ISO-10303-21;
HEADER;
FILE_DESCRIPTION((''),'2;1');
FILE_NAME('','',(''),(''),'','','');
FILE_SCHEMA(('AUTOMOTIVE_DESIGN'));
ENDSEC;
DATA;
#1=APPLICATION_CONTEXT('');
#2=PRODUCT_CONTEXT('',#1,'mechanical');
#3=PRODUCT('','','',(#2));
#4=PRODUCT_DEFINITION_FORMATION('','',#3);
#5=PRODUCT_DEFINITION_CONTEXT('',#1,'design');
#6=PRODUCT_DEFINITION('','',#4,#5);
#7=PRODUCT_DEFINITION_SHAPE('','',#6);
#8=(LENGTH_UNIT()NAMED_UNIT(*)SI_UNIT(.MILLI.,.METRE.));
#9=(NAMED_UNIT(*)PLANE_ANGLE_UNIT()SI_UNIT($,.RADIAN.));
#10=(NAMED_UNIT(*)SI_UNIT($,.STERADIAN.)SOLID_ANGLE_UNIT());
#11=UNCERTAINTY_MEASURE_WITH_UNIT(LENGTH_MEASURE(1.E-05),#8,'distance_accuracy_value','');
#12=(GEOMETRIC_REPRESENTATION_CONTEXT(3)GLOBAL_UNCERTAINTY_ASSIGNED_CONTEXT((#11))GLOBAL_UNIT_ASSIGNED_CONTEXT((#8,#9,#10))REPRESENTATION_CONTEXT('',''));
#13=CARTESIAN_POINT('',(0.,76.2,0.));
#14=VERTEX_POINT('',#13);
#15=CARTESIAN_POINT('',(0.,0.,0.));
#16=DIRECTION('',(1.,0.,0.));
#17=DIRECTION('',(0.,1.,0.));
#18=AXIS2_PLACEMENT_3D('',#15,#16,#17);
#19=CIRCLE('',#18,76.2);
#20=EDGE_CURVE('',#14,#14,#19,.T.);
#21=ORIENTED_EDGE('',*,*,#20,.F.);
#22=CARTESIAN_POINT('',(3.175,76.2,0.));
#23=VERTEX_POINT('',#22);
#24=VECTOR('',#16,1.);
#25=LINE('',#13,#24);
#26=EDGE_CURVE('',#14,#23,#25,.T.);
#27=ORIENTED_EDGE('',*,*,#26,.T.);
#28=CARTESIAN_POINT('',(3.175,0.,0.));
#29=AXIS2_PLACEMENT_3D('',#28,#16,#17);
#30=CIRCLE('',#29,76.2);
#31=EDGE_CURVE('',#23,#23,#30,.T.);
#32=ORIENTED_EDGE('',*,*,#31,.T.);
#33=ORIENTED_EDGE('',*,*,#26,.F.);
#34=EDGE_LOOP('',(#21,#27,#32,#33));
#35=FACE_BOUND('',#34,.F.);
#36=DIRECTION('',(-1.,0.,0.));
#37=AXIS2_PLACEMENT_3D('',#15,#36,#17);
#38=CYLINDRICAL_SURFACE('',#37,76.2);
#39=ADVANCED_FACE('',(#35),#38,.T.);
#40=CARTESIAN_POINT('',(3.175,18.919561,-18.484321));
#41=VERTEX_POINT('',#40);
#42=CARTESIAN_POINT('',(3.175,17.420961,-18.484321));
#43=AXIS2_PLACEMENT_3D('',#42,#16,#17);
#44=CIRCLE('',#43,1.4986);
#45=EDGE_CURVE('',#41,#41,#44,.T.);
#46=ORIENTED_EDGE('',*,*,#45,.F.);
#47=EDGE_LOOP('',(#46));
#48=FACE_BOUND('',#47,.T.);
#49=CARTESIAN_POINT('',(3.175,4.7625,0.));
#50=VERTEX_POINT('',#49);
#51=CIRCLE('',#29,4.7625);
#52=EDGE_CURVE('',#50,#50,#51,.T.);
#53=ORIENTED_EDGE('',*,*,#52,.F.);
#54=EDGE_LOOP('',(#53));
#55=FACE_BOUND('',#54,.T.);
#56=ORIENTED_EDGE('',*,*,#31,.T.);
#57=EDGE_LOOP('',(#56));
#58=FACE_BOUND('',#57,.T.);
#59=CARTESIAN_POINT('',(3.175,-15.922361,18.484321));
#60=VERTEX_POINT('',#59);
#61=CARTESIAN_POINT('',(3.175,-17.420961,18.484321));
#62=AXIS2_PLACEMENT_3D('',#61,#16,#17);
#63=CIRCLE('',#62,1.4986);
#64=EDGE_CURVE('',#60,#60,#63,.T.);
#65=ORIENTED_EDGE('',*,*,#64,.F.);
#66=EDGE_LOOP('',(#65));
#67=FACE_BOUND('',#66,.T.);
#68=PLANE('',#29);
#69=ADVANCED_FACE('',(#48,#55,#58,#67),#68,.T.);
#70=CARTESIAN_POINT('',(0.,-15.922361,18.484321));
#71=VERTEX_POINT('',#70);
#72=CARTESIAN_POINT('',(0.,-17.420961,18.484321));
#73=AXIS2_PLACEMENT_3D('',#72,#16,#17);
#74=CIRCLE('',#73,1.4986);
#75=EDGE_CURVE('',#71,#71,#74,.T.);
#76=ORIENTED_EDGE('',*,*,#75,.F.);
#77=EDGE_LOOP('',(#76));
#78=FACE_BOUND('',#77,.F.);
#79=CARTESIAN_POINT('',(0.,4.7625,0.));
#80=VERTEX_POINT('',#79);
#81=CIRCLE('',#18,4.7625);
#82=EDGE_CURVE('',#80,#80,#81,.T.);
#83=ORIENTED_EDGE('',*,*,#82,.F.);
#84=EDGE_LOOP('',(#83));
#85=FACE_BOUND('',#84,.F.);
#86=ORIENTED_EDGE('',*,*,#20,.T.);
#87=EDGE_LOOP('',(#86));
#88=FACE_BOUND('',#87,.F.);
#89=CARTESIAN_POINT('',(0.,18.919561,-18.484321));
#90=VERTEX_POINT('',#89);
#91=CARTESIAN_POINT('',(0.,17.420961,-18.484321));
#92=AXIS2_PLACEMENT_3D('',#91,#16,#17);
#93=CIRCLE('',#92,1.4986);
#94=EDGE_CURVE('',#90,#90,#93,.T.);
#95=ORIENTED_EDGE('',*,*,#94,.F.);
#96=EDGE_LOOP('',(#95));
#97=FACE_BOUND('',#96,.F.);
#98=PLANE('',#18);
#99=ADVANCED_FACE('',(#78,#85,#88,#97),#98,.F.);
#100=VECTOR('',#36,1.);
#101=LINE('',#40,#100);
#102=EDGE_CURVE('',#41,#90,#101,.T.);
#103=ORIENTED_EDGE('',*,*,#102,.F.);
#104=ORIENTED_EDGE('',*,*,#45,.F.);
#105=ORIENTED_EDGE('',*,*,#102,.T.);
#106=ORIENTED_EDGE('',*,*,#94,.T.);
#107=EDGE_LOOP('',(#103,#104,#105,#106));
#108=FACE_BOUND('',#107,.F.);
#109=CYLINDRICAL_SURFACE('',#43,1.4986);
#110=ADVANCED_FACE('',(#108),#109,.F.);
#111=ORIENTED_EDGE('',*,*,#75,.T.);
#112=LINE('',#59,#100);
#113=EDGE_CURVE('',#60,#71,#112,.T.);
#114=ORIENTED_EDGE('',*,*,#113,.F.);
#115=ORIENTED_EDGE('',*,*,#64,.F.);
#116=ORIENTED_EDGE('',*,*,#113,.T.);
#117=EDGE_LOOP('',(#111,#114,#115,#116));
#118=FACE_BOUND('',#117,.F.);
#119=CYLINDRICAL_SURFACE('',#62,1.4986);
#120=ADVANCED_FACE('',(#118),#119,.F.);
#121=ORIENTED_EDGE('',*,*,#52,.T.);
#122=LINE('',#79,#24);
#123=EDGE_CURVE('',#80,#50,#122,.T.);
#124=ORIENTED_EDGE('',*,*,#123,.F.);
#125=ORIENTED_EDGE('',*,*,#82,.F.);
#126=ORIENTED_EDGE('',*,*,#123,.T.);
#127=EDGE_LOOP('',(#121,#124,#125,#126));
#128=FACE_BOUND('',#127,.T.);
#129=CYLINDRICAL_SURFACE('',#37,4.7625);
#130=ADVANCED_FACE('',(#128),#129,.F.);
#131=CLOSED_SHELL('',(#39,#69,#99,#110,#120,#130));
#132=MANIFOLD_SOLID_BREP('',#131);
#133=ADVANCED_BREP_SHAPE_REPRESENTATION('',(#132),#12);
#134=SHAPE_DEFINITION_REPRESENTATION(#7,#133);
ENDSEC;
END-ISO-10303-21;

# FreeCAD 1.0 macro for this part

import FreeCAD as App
import Part
import Sketcher

V = App.Vector
Q = App.Units.Quantity

doc = App.newDocument("Part")
params = doc.addObject("Spreadsheet::Sheet", "Params")
for row, (alias, value) in enumerate([
    ("sketch1_diameter", "6 in"),
    ("sketch1_diameter2", "0.375 in"),
    ("pad1_length", "0.125 in"),
    ("sketch2_diameter", "0.125 in"),
    ("sketch3_diameter", "0.118 in"),
    ("pocket2_length", "1 in"),
], start=1):
    params.set(f"A{row}", alias)
    params.set(f"B{row}", "=" + value)
    params.setAlias(f"B{row}", alias)

body = doc.addObject("PartDesign::Body", "Body")

sketch1 = body.newObject("Sketcher::SketchObject", "Sketch")
sketch1.AttachmentSupport = (doc.getObject("YZ_Plane"), [""])
sketch1.MapMode = "FlatFace"
sketch1.addGeometry([
    Part.Circle(V(0, 0, 0), V(0, 0, 1), 76.2),
    Part.Circle(V(0, 0, 0), V(0, 0, 1), 4.8),
], False)
sketch1.addConstraint([
    Sketcher.Constraint("Coincident", 0, 3, -1, 1),
    Sketcher.Constraint("Coincident", 1, 3, -1, 1),
    Sketcher.Constraint("Diameter", 0, Q("6 in")),
    Sketcher.Constraint("Diameter", 1, Q("0.375 in")),
])
sketch1.setExpression("Constraints[2]", "Params.sketch1_diameter")
sketch1.setExpression("Constraints[3]", "Params.sketch1_diameter2")
pad1 = body.newObject("PartDesign::Pad", "Pad")
pad1.Profile = sketch1
pad1.setExpression("Length", "Params.pad1_length")

sketch2 = body.newObject("Sketcher::SketchObject", "Sketch001")
sketch2.AttachmentSupport = (doc.getObject("YZ_Plane"), [""])
sketch2.MapMode = "FlatFace"
sketch2.AttachmentOffset = App.Placement(V(0, 0, 0.125 * 25.4), App.Rotation())
sketch2.addGeometry(Part.Circle(V(0, 0, 0), V(0, 0, 1), 1.6), False)
sketch2.addConstraint([
    Sketcher.Constraint("Coincident", 0, 3, -1, 1),
    Sketcher.Constraint("Diameter", 0, Q("0.125 in")),
])
sketch2.setExpression("Constraints[1]", "Params.sketch2_diameter")
pocket1 = body.newObject("PartDesign::Pocket", "Pocket")
pocket1.Profile = sketch2
pocket1.Type = "ThroughAll"

sketch3 = body.newObject("Sketcher::SketchObject", "Sketch002")
sketch3.AttachmentSupport = (doc.getObject("YZ_Plane"), [""])
sketch3.MapMode = "FlatFace"
sketch3.AttachmentOffset = App.Placement(V(0, 0, 0.125 * 25.4), App.Rotation())
sketch3.addGeometry([
    Part.Circle(V(-17.4, 18.5, 0), V(0, 0, 1), 1.5),
    Part.Circle(V(17.4, -18.5, 0), V(0, 0, 1), 1.5),
], False)
sketch3.addConstraint([
    Sketcher.Constraint("Equal", 0, 1),
    Sketcher.Constraint("Symmetric", 0, 3, 1, 3, -1, 1),
    Sketcher.Constraint("Diameter", 0, Q("0.118 in")),
    Sketcher.Constraint("DistanceX", 0, 3, -1, 1, 17.420961),
    Sketcher.Constraint("DistanceY", -1, 1, 0, 3, 18.484321),
])
sketch3.setExpression("Constraints[2]", "Params.sketch3_diameter")
pocket2 = body.newObject("PartDesign::Pocket", "Pocket001")
pocket2.Profile = sketch3
pocket2.setExpression("Length", "Params.pocket2_length")

doc.recompute()
